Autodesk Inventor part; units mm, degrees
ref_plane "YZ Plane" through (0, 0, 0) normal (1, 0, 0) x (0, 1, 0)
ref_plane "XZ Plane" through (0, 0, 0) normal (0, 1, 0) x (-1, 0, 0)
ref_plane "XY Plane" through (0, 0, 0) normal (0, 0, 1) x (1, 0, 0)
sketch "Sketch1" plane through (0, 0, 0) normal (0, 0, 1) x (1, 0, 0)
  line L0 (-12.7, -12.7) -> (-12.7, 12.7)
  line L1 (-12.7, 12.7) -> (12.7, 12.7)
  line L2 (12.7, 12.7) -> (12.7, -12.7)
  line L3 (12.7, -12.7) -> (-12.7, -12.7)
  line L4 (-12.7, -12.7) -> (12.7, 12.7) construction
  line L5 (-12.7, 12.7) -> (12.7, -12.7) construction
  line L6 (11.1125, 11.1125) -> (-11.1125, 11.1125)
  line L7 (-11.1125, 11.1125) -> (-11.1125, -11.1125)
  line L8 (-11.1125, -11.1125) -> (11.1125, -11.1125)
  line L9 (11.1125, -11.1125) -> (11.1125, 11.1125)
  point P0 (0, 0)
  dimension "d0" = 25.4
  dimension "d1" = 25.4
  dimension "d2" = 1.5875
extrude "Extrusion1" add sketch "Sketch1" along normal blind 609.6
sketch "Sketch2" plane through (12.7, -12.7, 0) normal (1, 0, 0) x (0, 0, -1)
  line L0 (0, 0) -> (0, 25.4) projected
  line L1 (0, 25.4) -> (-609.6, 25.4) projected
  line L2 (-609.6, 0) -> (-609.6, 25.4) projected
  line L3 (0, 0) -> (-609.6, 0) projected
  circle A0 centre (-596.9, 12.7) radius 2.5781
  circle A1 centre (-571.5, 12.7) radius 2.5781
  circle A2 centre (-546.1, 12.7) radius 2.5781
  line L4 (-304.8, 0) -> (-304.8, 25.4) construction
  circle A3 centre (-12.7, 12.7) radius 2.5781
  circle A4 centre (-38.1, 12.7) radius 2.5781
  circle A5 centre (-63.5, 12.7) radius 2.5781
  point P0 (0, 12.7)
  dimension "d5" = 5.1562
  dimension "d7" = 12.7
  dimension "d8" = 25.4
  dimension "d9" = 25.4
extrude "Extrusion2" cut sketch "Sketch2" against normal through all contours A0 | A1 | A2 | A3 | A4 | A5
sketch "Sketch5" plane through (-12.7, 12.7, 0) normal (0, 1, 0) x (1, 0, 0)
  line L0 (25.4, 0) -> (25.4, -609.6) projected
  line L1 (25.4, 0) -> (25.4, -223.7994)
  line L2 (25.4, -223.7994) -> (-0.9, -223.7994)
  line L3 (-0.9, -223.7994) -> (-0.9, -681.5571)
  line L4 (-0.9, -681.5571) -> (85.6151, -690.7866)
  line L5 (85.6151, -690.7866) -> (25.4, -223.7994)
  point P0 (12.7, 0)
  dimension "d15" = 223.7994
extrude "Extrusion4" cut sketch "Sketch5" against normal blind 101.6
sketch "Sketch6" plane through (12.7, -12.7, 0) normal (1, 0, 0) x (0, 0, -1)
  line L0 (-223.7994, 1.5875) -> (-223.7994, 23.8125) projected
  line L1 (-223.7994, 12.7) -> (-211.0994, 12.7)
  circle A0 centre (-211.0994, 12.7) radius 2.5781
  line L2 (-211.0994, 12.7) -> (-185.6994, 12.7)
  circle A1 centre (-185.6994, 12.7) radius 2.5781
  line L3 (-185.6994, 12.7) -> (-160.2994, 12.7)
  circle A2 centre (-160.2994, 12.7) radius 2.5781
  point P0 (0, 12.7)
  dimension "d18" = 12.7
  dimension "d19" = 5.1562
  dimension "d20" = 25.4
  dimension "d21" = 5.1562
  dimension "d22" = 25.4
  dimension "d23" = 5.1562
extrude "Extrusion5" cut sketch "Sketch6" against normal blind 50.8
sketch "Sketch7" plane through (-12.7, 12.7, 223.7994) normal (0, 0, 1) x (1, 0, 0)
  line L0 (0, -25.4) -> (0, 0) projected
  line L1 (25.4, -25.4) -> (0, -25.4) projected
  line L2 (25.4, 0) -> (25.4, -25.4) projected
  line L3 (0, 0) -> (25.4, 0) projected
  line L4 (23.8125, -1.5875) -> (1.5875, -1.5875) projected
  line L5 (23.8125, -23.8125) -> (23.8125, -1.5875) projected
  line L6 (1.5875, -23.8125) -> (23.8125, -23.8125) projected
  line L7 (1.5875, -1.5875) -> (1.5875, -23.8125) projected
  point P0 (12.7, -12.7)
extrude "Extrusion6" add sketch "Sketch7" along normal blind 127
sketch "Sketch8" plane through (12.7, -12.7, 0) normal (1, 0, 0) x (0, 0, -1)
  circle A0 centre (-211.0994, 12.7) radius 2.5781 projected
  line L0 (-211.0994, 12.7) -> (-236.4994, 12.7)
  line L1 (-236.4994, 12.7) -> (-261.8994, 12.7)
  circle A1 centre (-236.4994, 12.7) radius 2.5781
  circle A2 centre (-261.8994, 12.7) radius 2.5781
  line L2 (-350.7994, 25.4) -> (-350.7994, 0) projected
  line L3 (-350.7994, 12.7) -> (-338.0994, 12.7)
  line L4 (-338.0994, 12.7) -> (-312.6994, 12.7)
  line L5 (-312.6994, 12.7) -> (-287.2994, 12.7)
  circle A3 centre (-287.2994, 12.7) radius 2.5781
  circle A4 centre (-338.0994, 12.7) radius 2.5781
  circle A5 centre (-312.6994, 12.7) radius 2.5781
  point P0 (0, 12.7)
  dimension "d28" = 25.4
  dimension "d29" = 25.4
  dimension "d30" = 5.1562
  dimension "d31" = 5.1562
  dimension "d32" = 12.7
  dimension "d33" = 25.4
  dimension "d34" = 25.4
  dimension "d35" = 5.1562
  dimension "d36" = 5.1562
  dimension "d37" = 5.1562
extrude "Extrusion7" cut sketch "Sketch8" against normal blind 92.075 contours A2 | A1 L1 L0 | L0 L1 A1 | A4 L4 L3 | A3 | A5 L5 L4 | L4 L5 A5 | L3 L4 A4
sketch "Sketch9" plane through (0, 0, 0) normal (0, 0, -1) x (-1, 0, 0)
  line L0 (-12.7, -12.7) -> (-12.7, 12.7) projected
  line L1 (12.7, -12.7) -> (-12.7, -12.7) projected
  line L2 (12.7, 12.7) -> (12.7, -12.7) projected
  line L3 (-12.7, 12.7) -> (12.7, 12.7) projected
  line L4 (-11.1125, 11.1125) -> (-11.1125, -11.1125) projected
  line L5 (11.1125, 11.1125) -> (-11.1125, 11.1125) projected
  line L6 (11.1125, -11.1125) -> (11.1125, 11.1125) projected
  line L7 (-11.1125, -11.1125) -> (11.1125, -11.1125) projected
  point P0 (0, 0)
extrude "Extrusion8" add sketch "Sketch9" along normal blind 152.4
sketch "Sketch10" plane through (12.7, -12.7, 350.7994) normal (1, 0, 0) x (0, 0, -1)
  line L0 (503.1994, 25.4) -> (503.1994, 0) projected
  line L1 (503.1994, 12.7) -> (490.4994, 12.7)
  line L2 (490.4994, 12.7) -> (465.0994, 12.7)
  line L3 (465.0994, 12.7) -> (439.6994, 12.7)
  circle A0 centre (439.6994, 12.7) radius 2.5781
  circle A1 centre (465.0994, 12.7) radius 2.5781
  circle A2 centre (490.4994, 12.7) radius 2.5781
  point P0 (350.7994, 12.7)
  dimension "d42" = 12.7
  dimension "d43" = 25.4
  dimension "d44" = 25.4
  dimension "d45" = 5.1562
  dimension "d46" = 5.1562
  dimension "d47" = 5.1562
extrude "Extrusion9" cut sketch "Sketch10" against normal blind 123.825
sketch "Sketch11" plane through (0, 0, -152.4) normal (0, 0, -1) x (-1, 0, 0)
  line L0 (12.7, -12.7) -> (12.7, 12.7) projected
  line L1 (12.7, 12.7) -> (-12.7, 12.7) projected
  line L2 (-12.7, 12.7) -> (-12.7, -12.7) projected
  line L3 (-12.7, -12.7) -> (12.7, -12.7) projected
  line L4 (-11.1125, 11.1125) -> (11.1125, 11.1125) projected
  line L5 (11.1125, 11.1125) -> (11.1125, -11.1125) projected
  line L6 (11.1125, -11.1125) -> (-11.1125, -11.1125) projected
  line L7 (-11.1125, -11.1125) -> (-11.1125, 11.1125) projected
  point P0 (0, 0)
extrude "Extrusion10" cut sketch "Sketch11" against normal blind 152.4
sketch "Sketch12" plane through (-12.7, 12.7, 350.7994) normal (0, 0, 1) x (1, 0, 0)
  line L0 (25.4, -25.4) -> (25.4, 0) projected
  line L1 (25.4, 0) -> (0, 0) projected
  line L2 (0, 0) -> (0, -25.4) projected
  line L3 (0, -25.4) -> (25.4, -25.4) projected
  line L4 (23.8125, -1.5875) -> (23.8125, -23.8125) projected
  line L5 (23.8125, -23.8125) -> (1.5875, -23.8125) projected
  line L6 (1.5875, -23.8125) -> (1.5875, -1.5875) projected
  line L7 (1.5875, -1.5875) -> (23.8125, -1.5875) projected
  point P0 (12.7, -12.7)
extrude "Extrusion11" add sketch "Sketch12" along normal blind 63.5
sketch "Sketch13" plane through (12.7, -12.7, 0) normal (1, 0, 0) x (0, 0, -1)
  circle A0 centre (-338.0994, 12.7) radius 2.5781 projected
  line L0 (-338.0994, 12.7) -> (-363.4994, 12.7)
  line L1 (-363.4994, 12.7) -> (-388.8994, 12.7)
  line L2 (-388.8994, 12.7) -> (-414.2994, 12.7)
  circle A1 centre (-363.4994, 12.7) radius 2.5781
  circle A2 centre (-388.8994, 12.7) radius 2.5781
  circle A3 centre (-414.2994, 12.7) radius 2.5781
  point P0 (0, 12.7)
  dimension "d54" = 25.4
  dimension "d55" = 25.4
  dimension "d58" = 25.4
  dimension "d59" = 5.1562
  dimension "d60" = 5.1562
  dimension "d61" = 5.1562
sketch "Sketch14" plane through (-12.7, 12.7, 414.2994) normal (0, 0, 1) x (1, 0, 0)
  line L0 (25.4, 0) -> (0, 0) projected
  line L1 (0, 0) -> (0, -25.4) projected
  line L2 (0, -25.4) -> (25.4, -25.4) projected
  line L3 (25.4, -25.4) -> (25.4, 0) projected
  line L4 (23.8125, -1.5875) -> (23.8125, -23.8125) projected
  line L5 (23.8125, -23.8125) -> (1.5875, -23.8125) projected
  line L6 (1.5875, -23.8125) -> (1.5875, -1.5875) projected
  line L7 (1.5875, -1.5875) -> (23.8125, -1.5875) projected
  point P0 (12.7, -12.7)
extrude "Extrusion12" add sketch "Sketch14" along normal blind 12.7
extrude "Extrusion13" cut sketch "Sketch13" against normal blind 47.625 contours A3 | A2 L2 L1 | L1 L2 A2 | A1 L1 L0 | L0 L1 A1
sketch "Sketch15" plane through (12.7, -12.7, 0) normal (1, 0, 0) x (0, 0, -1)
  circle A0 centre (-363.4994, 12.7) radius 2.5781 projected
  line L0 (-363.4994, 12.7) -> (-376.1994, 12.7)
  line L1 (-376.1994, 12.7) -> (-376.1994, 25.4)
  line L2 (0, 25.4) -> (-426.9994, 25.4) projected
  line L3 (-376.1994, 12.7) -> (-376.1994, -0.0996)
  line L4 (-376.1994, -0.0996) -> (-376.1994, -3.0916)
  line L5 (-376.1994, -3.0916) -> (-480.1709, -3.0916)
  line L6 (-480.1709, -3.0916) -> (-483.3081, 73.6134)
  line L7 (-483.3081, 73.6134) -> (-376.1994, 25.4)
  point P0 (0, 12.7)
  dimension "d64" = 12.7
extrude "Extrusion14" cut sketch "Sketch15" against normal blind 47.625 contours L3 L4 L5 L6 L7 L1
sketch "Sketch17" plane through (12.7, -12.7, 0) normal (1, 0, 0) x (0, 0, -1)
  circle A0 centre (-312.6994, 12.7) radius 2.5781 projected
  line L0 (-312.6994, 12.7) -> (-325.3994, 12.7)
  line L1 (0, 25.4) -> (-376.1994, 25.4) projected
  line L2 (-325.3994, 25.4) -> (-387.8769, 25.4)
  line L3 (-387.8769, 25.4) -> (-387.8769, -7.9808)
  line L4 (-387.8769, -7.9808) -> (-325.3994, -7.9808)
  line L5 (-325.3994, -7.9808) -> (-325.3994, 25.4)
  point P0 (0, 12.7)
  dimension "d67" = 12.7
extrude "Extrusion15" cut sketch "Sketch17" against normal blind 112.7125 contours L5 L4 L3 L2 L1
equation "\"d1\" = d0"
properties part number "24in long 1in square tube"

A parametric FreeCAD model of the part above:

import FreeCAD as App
import Part
import Sketcher
Q = App.Units.Quantity

doc = App.newDocument("Part")
body = doc.addObject("PartDesign::Body", "Body")

sketch1 = doc.addObject("Sketcher::SketchObject", "Sketch")
body.addObject(sketch1)
sketch1.AttachmentSupport = (doc.XY_Plane, [""])
sketch1.MapMode = "FlatFace"
sketch1.addGeometry(Part.LineSegment(App.Vector(-13, 13, 0), App.Vector(-13, -13, 0)), False)
sketch1.addGeometry(Part.LineSegment(App.Vector(-13, -13, 0), App.Vector(13, -13, 0)), False)
sketch1.addGeometry(Part.LineSegment(App.Vector(13, -13, 0), App.Vector(13, 13, 0)), False)
sketch1.addGeometry(Part.LineSegment(App.Vector(13, 13, 0), App.Vector(-13, 13, 0)), False)
sketch1.addGeometry(Part.LineSegment(App.Vector(-11, 11, 0), App.Vector(11, 11, 0)), False)
sketch1.addGeometry(Part.LineSegment(App.Vector(11, 11, 0), App.Vector(11, -11, 0)), False)
sketch1.addGeometry(Part.LineSegment(App.Vector(11, -11, 0), App.Vector(-11, -11, 0)), False)
sketch1.addGeometry(Part.LineSegment(App.Vector(-11, -11, 0), App.Vector(-11, 11, 0)), False)
sketch1.addConstraint(Sketcher.Constraint("Coincident", 0, 2, 1, 1))
sketch1.addConstraint(Sketcher.Constraint("Coincident", 1, 2, 2, 1))
sketch1.addConstraint(Sketcher.Constraint("Coincident", 2, 2, 3, 1))
sketch1.addConstraint(Sketcher.Constraint("Coincident", 3, 2, 0, 1))
sketch1.addConstraint(Sketcher.Constraint("Coincident", 4, 2, 5, 1))
sketch1.addConstraint(Sketcher.Constraint("Coincident", 5, 2, 6, 1))
sketch1.addConstraint(Sketcher.Constraint("Coincident", 6, 2, 7, 1))
sketch1.addConstraint(Sketcher.Constraint("Coincident", 7, 2, 4, 1))
sketch1.addConstraint(Sketcher.Constraint("Vertical", 0))
sketch1.addConstraint(Sketcher.Constraint("Horizontal", 1))
sketch1.addConstraint(Sketcher.Constraint("Vertical", 2))
sketch1.addConstraint(Sketcher.Constraint("Horizontal", 3))
sketch1.addConstraint(Sketcher.Constraint("Horizontal", 4))
sketch1.addConstraint(Sketcher.Constraint("Vertical", 5))
sketch1.addConstraint(Sketcher.Constraint("Horizontal", 6))
sketch1.addConstraint(Sketcher.Constraint("Vertical", 7))
sketch1.addConstraint(Sketcher.Constraint("Symmetric", 0, 2, 2, 2, -1, 1))
sketch1.addConstraint(Sketcher.Constraint("Symmetric", 4, 2, 6, 2, -1, 1))
sketch1.addConstraint(Sketcher.Constraint("Equal", 3, 0))
sketch1.addConstraint(Sketcher.Constraint("Equal", 6, 5))
sketch1.addConstraint(Sketcher.Constraint("DistanceX", 1, 1, 1, 2, Q("1 in")))
sketch1.addConstraint(Sketcher.Constraint("DistanceX", 4, 2, 2, 2, Q("0.0625 in")))
pad1 = doc.addObject("PartDesign::Pad", "Pad")
body.addObject(pad1)
pad1.Profile = sketch1
pad1.Length = Q("24 in")

sketch2 = doc.addObject("Sketcher::SketchObject", "Sketch001")
body.addObject(sketch2)
sketch2.AttachmentSupport = (doc.YZ_Plane, [""])
sketch2.MapMode = "FlatFace"
sketch2.AttachmentOffset = App.Placement(App.Vector(0, 0, 0.5 * 25.4), App.Rotation())
sketch2.addGeometry(Part.Circle(App.Vector(0, 596.9, 0), App.Vector(0, 0, 1), 2.6), False)
sketch2.addGeometry(Part.Circle(App.Vector(0, 571.5, 0), App.Vector(0, 0, 1), 2.6), False)
sketch2.addGeometry(Part.Circle(App.Vector(0, 546.1, 0), App.Vector(0, 0, 1), 2.6), False)
sketch2.addGeometry(Part.Circle(App.Vector(0, 12.7, 0), App.Vector(0, 0, 1), 2.6), False)
sketch2.addGeometry(Part.Circle(App.Vector(0, 38.1, 0), App.Vector(0, 0, 1), 2.6), False)
sketch2.addGeometry(Part.Circle(App.Vector(0, 63.5, 0), App.Vector(0, 0, 1), 2.6), False)
sketch2.addConstraint(Sketcher.Constraint("Equal", 0, 1))
sketch2.addConstraint(Sketcher.Constraint("Equal", 1, 2))
sketch2.addConstraint(Sketcher.Constraint("Equal", 2, 3))
sketch2.addConstraint(Sketcher.Constraint("Equal", 3, 4))
sketch2.addConstraint(Sketcher.Constraint("Equal", 4, 5))
sketch2.addConstraint(Sketcher.Constraint("PointOnObject", 0, 3, -2))
sketch2.addConstraint(Sketcher.Constraint("PointOnObject", 1, 3, -2))
sketch2.addConstraint(Sketcher.Constraint("PointOnObject", 2, 3, -2))
sketch2.addConstraint(Sketcher.Constraint("PointOnObject", 3, 3, -2))
sketch2.addConstraint(Sketcher.Constraint("PointOnObject", 4, 3, -2))
sketch2.addConstraint(Sketcher.Constraint("PointOnObject", 5, 3, -2))
sketch2.addConstraint(Sketcher.Constraint("Diameter", 0, Q("0.203 in")))
sketch2.addConstraint(Sketcher.Constraint("DistanceY", 1, 3, 0, 3, Q("1 in")))
sketch2.addConstraint(Sketcher.Constraint("DistanceY", 2, 3, 1, 3, Q("1 in")))
sketch2.addConstraint(Sketcher.Constraint("DistanceY", 3, 3, 4, 3, Q("1 in")))
sketch2.addConstraint(Sketcher.Constraint("DistanceY", 4, 3, 5, 3, Q("1 in")))
sketch2.addConstraint(Sketcher.Constraint("DistanceY", -1, 1, 3, 3, Q("0.5 in")))
sketch2.addConstraint(Sketcher.Constraint("DistanceY", 3, 3, 2, 3, Q("21 in")))
pocket1 = doc.addObject("PartDesign::Pocket", "Pocket")
body.addObject(pocket1)
pocket1.Profile = sketch2
pocket1.Type = "ThroughAll"

sketch3 = doc.addObject("Sketcher::SketchObject", "Sketch002")
body.addObject(sketch3)
sketch3.AttachmentSupport = (doc.XZ_Plane, [""])
sketch3.MapMode = "FlatFace"
sketch3.AttachmentOffset = App.Placement(App.Vector(0, 0, -0.5 * 25.4), App.Rotation())
sketch3.addGeometry(Part.LineSegment(App.Vector(73, 691, 0), App.Vector(13, 224, 0)), False)
sketch3.addGeometry(Part.LineSegment(App.Vector(13, 224, 0), App.Vector(-14, 224, 0)), False)
sketch3.addGeometry(Part.LineSegment(App.Vector(-14, 224, 0), App.Vector(-14, 682, 0)), False)
sketch3.addGeometry(Part.LineSegment(App.Vector(-14, 682, 0), App.Vector(73, 691, 0)), False)
sketch3.addConstraint(Sketcher.Constraint("Coincident", 0, 2, 1, 1))
sketch3.addConstraint(Sketcher.Constraint("Coincident", 1, 2, 2, 1))
sketch3.addConstraint(Sketcher.Constraint("Coincident", 2, 2, 3, 1))
sketch3.addConstraint(Sketcher.Constraint("Coincident", 3, 2, 0, 1))
sketch3.addConstraint(Sketcher.Constraint("Horizontal", 1))
sketch3.addConstraint(Sketcher.Constraint("Vertical", 2))
sketch3.addConstraint(Sketcher.Constraint("DistanceY", -1, 1, 0, 2, Q("8.811 in")))
sketch3.addConstraint(Sketcher.Constraint("DistanceX", -1, 1, 0, 2, Q("0.5 in")))
sketch3.addConstraint(Sketcher.Constraint("Angle", 3, Q("6.0893 deg")))
sketch3.addConstraint(Sketcher.Constraint("DistanceX", 1, 2, 1, 1, 26.3))
sketch3.addConstraint(Sketcher.Constraint("DistanceY", 2, 1, 2, 2, 457.7577))
sketch3.addConstraint(Sketcher.Constraint("DistanceX", 2, 2, 3, 2, Q("3.4061 in")))
pocket2 = doc.addObject("PartDesign::Pocket", "Pocket001")
body.addObject(pocket2)
pocket2.Profile = sketch3
pocket2.Length = Q("4 in")
pocket2.Reversed = True

sketch4 = doc.addObject("Sketcher::SketchObject", "Sketch003")
body.addObject(sketch4)
sketch4.AttachmentSupport = (doc.YZ_Plane, [""])
sketch4.MapMode = "FlatFace"
sketch4.AttachmentOffset = App.Placement(App.Vector(0, 0, 0.5 * 25.4), App.Rotation())
sketch4.addGeometry(Part.Circle(App.Vector(0, 211.1, 0), App.Vector(0, 0, 1), 2.6), False)
sketch4.addGeometry(Part.Circle(App.Vector(0, 160.3, 0), App.Vector(0, 0, 1), 2.6), False)
sketch4.addGeometry(Part.Circle(App.Vector(0, 185.7, 0), App.Vector(0, 0, 1), 2.6), False)
sketch4.addConstraint(Sketcher.Constraint("Equal", 0, 1))
sketch4.addConstraint(Sketcher.Constraint("Equal", 1, 2))
sketch4.addConstraint(Sketcher.Constraint("PointOnObject", 0, 3, -2))
sketch4.addConstraint(Sketcher.Constraint("PointOnObject", 1, 3, -2))
sketch4.addConstraint(Sketcher.Constraint("PointOnObject", 2, 3, -2))
sketch4.addConstraint(Sketcher.Constraint("Diameter", 0, Q("0.203 in")))
sketch4.addConstraint(Sketcher.Constraint("DistanceY", 2, 3, 0, 3, Q("1 in")))
sketch4.addConstraint(Sketcher.Constraint("DistanceY", 1, 3, 2, 3, Q("1 in")))
sketch4.addConstraint(Sketcher.Constraint("DistanceY", -1, 1, 0, 3, Q("8.311 in")))
pocket3 = doc.addObject("PartDesign::Pocket", "Pocket002")
body.addObject(pocket3)
pocket3.Profile = sketch4
pocket3.Length = Q("2 in")

sketch5 = doc.addObject("Sketcher::SketchObject", "Sketch004")
body.addObject(sketch5)
sketch5.AttachmentSupport = (doc.XY_Plane, [""])
sketch5.MapMode = "FlatFace"
sketch5.AttachmentOffset = App.Placement(App.Vector(0, 0, 8.811 * 25.4), App.Rotation())
sketch5.addGeometry(Part.LineSegment(App.Vector(-13, 13, 0), App.Vector(-13, -13, 0)), False)
sketch5.addGeometry(Part.LineSegment(App.Vector(-13, -13, 0), App.Vector(13, -13, 0)), False)
sketch5.addGeometry(Part.LineSegment(App.Vector(13, -13, 0), App.Vector(13, 13, 0)), False)
sketch5.addGeometry(Part.LineSegment(App.Vector(13, 13, 0), App.Vector(-13, 13, 0)), False)
sketch5.addGeometry(Part.LineSegment(App.Vector(-11, 11, 0), App.Vector(11, 11, 0)), False)
sketch5.addGeometry(Part.LineSegment(App.Vector(11, 11, 0), App.Vector(11, -11, 0)), False)
sketch5.addGeometry(Part.LineSegment(App.Vector(11, -11, 0), App.Vector(-11, -11, 0)), False)
sketch5.addGeometry(Part.LineSegment(App.Vector(-11, -11, 0), App.Vector(-11, 11, 0)), False)
sketch5.addConstraint(Sketcher.Constraint("Coincident", 0, 2, 1, 1))
sketch5.addConstraint(Sketcher.Constraint("Coincident", 1, 2, 2, 1))
sketch5.addConstraint(Sketcher.Constraint("Coincident", 2, 2, 3, 1))
sketch5.addConstraint(Sketcher.Constraint("Coincident", 3, 2, 0, 1))
sketch5.addConstraint(Sketcher.Constraint("Coincident", 4, 2, 5, 1))
sketch5.addConstraint(Sketcher.Constraint("Coincident", 5, 2, 6, 1))
sketch5.addConstraint(Sketcher.Constraint("Coincident", 6, 2, 7, 1))
sketch5.addConstraint(Sketcher.Constraint("Coincident", 7, 2, 4, 1))
sketch5.addConstraint(Sketcher.Constraint("Vertical", 0))
sketch5.addConstraint(Sketcher.Constraint("Horizontal", 1))
sketch5.addConstraint(Sketcher.Constraint("Vertical", 2))
sketch5.addConstraint(Sketcher.Constraint("Horizontal", 3))
sketch5.addConstraint(Sketcher.Constraint("Horizontal", 4))
sketch5.addConstraint(Sketcher.Constraint("Vertical", 5))
sketch5.addConstraint(Sketcher.Constraint("Horizontal", 6))
sketch5.addConstraint(Sketcher.Constraint("Vertical", 7))
sketch5.addConstraint(Sketcher.Constraint("Symmetric", 0, 2, 2, 2, -1, 1))
sketch5.addConstraint(Sketcher.Constraint("Symmetric", 4, 2, 6, 2, -1, 1))
sketch5.addConstraint(Sketcher.Constraint("Equal", 3, 0))
sketch5.addConstraint(Sketcher.Constraint("Equal", 6, 5))
sketch5.addConstraint(Sketcher.Constraint("DistanceX", 1, 1, 1, 2, Q("1 in")))
sketch5.addConstraint(Sketcher.Constraint("DistanceX", 4, 1, 4, 2, Q("0.875 in")))
pad2 = doc.addObject("PartDesign::Pad", "Pad001")
body.addObject(pad2)
pad2.Profile = sketch5
pad2.Length = Q("5 in")

sketch6 = doc.addObject("Sketcher::SketchObject", "Sketch005")
body.addObject(sketch6)
sketch6.AttachmentSupport = (doc.YZ_Plane, [""])
sketch6.MapMode = "FlatFace"
sketch6.AttachmentOffset = App.Placement(App.Vector(0, 0, 0.5 * 25.4), App.Rotation())
sketch6.addGeometry(Part.Circle(App.Vector(0, 261.9, 0), App.Vector(0, 0, 1), 2.6), False)
sketch6.addGeometry(Part.Circle(App.Vector(0, 236.5, 0), App.Vector(0, 0, 1), 2.6), False)
sketch6.addGeometry(Part.Circle(App.Vector(0, 338.1, 0), App.Vector(0, 0, 1), 2.6), False)
sketch6.addGeometry(Part.Circle(App.Vector(0, 287.3, 0), App.Vector(0, 0, 1), 2.6), False)
sketch6.addGeometry(Part.Circle(App.Vector(0, 312.7, 0), App.Vector(0, 0, 1), 2.6), False)
sketch6.addConstraint(Sketcher.Constraint("Equal", 0, 1))
sketch6.addConstraint(Sketcher.Constraint("Equal", 1, 2))
sketch6.addConstraint(Sketcher.Constraint("Equal", 2, 3))
sketch6.addConstraint(Sketcher.Constraint("Equal", 3, 4))
sketch6.addConstraint(Sketcher.Constraint("PointOnObject", 0, 3, -2))
sketch6.addConstraint(Sketcher.Constraint("PointOnObject", 1, 3, -2))
sketch6.addConstraint(Sketcher.Constraint("PointOnObject", 2, 3, -2))
sketch6.addConstraint(Sketcher.Constraint("PointOnObject", 3, 3, -2))
sketch6.addConstraint(Sketcher.Constraint("PointOnObject", 4, 3, -2))
sketch6.addConstraint(Sketcher.Constraint("Diameter", 0, Q("0.203 in")))
sketch6.addConstraint(Sketcher.Constraint("DistanceY", 1, 3, 0, 3, Q("1 in")))
sketch6.addConstraint(Sketcher.Constraint("DistanceY", 0, 3, 3, 3, Q("1 in")))
sketch6.addConstraint(Sketcher.Constraint("DistanceY", 4, 3, 2, 3, Q("1 in")))
sketch6.addConstraint(Sketcher.Constraint("DistanceY", 3, 3, 4, 3, Q("1 in")))
sketch6.addConstraint(Sketcher.Constraint("DistanceY", -1, 1, 0, 3, Q("10.311 in")))
pocket4 = doc.addObject("PartDesign::Pocket", "Pocket003")
body.addObject(pocket4)
pocket4.Profile = sketch6
pocket4.Length = Q("3.625 in")

sketch7 = doc.addObject("Sketcher::SketchObject", "Sketch006")
body.addObject(sketch7)
sketch7.AttachmentSupport = (doc.XY_Plane, [""])
sketch7.MapMode = "FlatFace"
sketch7.addGeometry(Part.LineSegment(App.Vector(13, 13, 0), App.Vector(13, -13, 0)), False)
sketch7.addGeometry(Part.LineSegment(App.Vector(13, -13, 0), App.Vector(-13, -13, 0)), False)
sketch7.addGeometry(Part.LineSegment(App.Vector(-13, -13, 0), App.Vector(-13, 13, 0)), False)
sketch7.addGeometry(Part.LineSegment(App.Vector(-13, 13, 0), App.Vector(13, 13, 0)), False)
sketch7.addGeometry(Part.LineSegment(App.Vector(11, -11, 0), App.Vector(11, 11, 0)), False)
sketch7.addGeometry(Part.LineSegment(App.Vector(11, 11, 0), App.Vector(-11, 11, 0)), False)
sketch7.addGeometry(Part.LineSegment(App.Vector(-11, 11, 0), App.Vector(-11, -11, 0)), False)
sketch7.addGeometry(Part.LineSegment(App.Vector(-11, -11, 0), App.Vector(11, -11, 0)), False)
sketch7.addConstraint(Sketcher.Constraint("Coincident", 0, 2, 1, 1))
sketch7.addConstraint(Sketcher.Constraint("Coincident", 1, 2, 2, 1))
sketch7.addConstraint(Sketcher.Constraint("Coincident", 2, 2, 3, 1))
sketch7.addConstraint(Sketcher.Constraint("Coincident", 3, 2, 0, 1))
sketch7.addConstraint(Sketcher.Constraint("Coincident", 4, 2, 5, 1))
sketch7.addConstraint(Sketcher.Constraint("Coincident", 5, 2, 6, 1))
sketch7.addConstraint(Sketcher.Constraint("Coincident", 6, 2, 7, 1))
sketch7.addConstraint(Sketcher.Constraint("Coincident", 7, 2, 4, 1))
sketch7.addConstraint(Sketcher.Constraint("Vertical", 0))
sketch7.addConstraint(Sketcher.Constraint("Horizontal", 1))
sketch7.addConstraint(Sketcher.Constraint("Vertical", 2))
sketch7.addConstraint(Sketcher.Constraint("Horizontal", 3))
sketch7.addConstraint(Sketcher.Constraint("Vertical", 4))
sketch7.addConstraint(Sketcher.Constraint("Horizontal", 5))
sketch7.addConstraint(Sketcher.Constraint("Vertical", 6))
sketch7.addConstraint(Sketcher.Constraint("Horizontal", 7))
sketch7.addConstraint(Sketcher.Constraint("Symmetric", 0, 2, 2, 2, -1, 1))
sketch7.addConstraint(Sketcher.Constraint("Symmetric", 4, 2, 6, 2, -1, 1))
sketch7.addConstraint(Sketcher.Constraint("Equal", 3, 0))
sketch7.addConstraint(Sketcher.Constraint("Equal", 7, 4))
sketch7.addConstraint(Sketcher.Constraint("DistanceX", 1, 2, 1, 1, Q("1 in")))
sketch7.addConstraint(Sketcher.Constraint("DistanceX", 5, 2, 5, 1, Q("0.875 in")))
pad3 = doc.addObject("PartDesign::Pad", "Pad002")
body.addObject(pad3)
pad3.Profile = sketch7
pad3.Length = Q("6 in")
pad3.Reversed = True

sketch8 = doc.addObject("Sketcher::SketchObject", "Sketch007")
body.addObject(sketch8)
sketch8.AttachmentSupport = (doc.YZ_Plane, [""])
sketch8.MapMode = "FlatFace"
sketch8.AttachmentOffset = App.Placement(App.Vector(0, 0, 0.5 * 25.4), App.Rotation())
sketch8.addGeometry(Part.Circle(App.Vector(0, -139.7, 0), App.Vector(0, 0, 1), 2.6), False)
sketch8.addGeometry(Part.Circle(App.Vector(0, -88.9, 0), App.Vector(0, 0, 1), 2.6), False)
sketch8.addGeometry(Part.Circle(App.Vector(0, -114.3, 0), App.Vector(0, 0, 1), 2.6), False)
sketch8.addConstraint(Sketcher.Constraint("Equal", 0, 1))
sketch8.addConstraint(Sketcher.Constraint("Equal", 1, 2))
sketch8.addConstraint(Sketcher.Constraint("PointOnObject", 0, 3, -2))
sketch8.addConstraint(Sketcher.Constraint("PointOnObject", 1, 3, -2))
sketch8.addConstraint(Sketcher.Constraint("PointOnObject", 2, 3, -2))
sketch8.addConstraint(Sketcher.Constraint("Diameter", 0, Q("0.203 in")))
sketch8.addConstraint(Sketcher.Constraint("DistanceY", 0, 3, 2, 3, Q("1 in")))
sketch8.addConstraint(Sketcher.Constraint("DistanceY", 2, 3, 1, 3, Q("1 in")))
sketch8.addConstraint(Sketcher.Constraint("DistanceY", 0, 3, -1, 1, Q("5.5 in")))
pocket5 = doc.addObject("PartDesign::Pocket", "Pocket004")
body.addObject(pocket5)
pocket5.Profile = sketch8
pocket5.Length = Q("4.875 in")

sketch9 = doc.addObject("Sketcher::SketchObject", "Sketch008")
body.addObject(sketch9)
sketch9.AttachmentSupport = (doc.XY_Plane, [""])
sketch9.MapMode = "FlatFace"
sketch9.AttachmentOffset = App.Placement(App.Vector(0, 0, -6 * 25.4), App.Rotation())
sketch9.addGeometry(Part.LineSegment(App.Vector(13, -13, 0), App.Vector(-13, -13, 0)), False)
sketch9.addGeometry(Part.LineSegment(App.Vector(-13, -13, 0), App.Vector(-13, 13, 0)), False)
sketch9.addGeometry(Part.LineSegment(App.Vector(-13, 13, 0), App.Vector(13, 13, 0)), False)
sketch9.addGeometry(Part.LineSegment(App.Vector(13, 13, 0), App.Vector(13, -13, 0)), False)
sketch9.addGeometry(Part.LineSegment(App.Vector(11, -11, 0), App.Vector(11, 11, 0)), False)
sketch9.addGeometry(Part.LineSegment(App.Vector(11, 11, 0), App.Vector(-11, 11, 0)), False)
sketch9.addGeometry(Part.LineSegment(App.Vector(-11, 11, 0), App.Vector(-11, -11, 0)), False)
sketch9.addGeometry(Part.LineSegment(App.Vector(-11, -11, 0), App.Vector(11, -11, 0)), False)
sketch9.addConstraint(Sketcher.Constraint("Coincident", 0, 2, 1, 1))
sketch9.addConstraint(Sketcher.Constraint("Coincident", 1, 2, 2, 1))
sketch9.addConstraint(Sketcher.Constraint("Coincident", 2, 2, 3, 1))
sketch9.addConstraint(Sketcher.Constraint("Coincident", 3, 2, 0, 1))
sketch9.addConstraint(Sketcher.Constraint("Coincident", 4, 2, 5, 1))
sketch9.addConstraint(Sketcher.Constraint("Coincident", 5, 2, 6, 1))
sketch9.addConstraint(Sketcher.Constraint("Coincident", 6, 2, 7, 1))
sketch9.addConstraint(Sketcher.Constraint("Coincident", 7, 2, 4, 1))
sketch9.addConstraint(Sketcher.Constraint("Horizontal", 0))
sketch9.addConstraint(Sketcher.Constraint("Vertical", 1))
sketch9.addConstraint(Sketcher.Constraint("Horizontal", 2))
sketch9.addConstraint(Sketcher.Constraint("Vertical", 3))
sketch9.addConstraint(Sketcher.Constraint("Vertical", 4))
sketch9.addConstraint(Sketcher.Constraint("Horizontal", 5))
sketch9.addConstraint(Sketcher.Constraint("Vertical", 6))
sketch9.addConstraint(Sketcher.Constraint("Horizontal", 7))
sketch9.addConstraint(Sketcher.Constraint("Symmetric", 0, 2, 2, 2, -1, 1))
sketch9.addConstraint(Sketcher.Constraint("Symmetric", 4, 2, 6, 2, -1, 1))
sketch9.addConstraint(Sketcher.Constraint("Equal", 2, 1))
sketch9.addConstraint(Sketcher.Constraint("Equal", 7, 4))
sketch9.addConstraint(Sketcher.Constraint("DistanceX", 0, 2, 0, 1, Q("1 in")))
sketch9.addConstraint(Sketcher.Constraint("DistanceX", 5, 2, 5, 1, Q("0.875 in")))
pocket6 = doc.addObject("PartDesign::Pocket", "Pocket005")
body.addObject(pocket6)
pocket6.Profile = sketch9
pocket6.Length = Q("6 in")
pocket6.Reversed = True

sketch10 = doc.addObject("Sketcher::SketchObject", "Sketch009")
body.addObject(sketch10)
sketch10.AttachmentSupport = (doc.XY_Plane, [""])
sketch10.MapMode = "FlatFace"
sketch10.AttachmentOffset = App.Placement(App.Vector(0, 0, 13.811 * 25.4), App.Rotation())
sketch10.addGeometry(Part.LineSegment(App.Vector(-13, -13, 0), App.Vector(13, -13, 0)), False)
sketch10.addGeometry(Part.LineSegment(App.Vector(13, -13, 0), App.Vector(13, 13, 0)), False)
sketch10.addGeometry(Part.LineSegment(App.Vector(13, 13, 0), App.Vector(-13, 13, 0)), False)
sketch10.addGeometry(Part.LineSegment(App.Vector(-13, 13, 0), App.Vector(-13, -13, 0)), False)
sketch10.addGeometry(Part.LineSegment(App.Vector(-11, 11, 0), App.Vector(11, 11, 0)), False)
sketch10.addGeometry(Part.LineSegment(App.Vector(11, 11, 0), App.Vector(11, -11, 0)), False)
sketch10.addGeometry(Part.LineSegment(App.Vector(11, -11, 0), App.Vector(-11, -11, 0)), False)
sketch10.addGeometry(Part.LineSegment(App.Vector(-11, -11, 0), App.Vector(-11, 11, 0)), False)
sketch10.addConstraint(Sketcher.Constraint("Coincident", 0, 2, 1, 1))
sketch10.addConstraint(Sketcher.Constraint("Coincident", 1, 2, 2, 1))
sketch10.addConstraint(Sketcher.Constraint("Coincident", 2, 2, 3, 1))
sketch10.addConstraint(Sketcher.Constraint("Coincident", 3, 2, 0, 1))
sketch10.addConstraint(Sketcher.Constraint("Coincident", 4, 2, 5, 1))
sketch10.addConstraint(Sketcher.Constraint("Coincident", 5, 2, 6, 1))
sketch10.addConstraint(Sketcher.Constraint("Coincident", 6, 2, 7, 1))
sketch10.addConstraint(Sketcher.Constraint("Coincident", 7, 2, 4, 1))
sketch10.addConstraint(Sketcher.Constraint("Horizontal", 0))
sketch10.addConstraint(Sketcher.Constraint("Vertical", 1))
sketch10.addConstraint(Sketcher.Constraint("Horizontal", 2))
sketch10.addConstraint(Sketcher.Constraint("Vertical", 3))
sketch10.addConstraint(Sketcher.Constraint("Horizontal", 4))
sketch10.addConstraint(Sketcher.Constraint("Vertical", 5))
sketch10.addConstraint(Sketcher.Constraint("Horizontal", 6))
sketch10.addConstraint(Sketcher.Constraint("Vertical", 7))
sketch10.addConstraint(Sketcher.Constraint("Symmetric", 0, 2, 2, 2, -1, 1))
sketch10.addConstraint(Sketcher.Constraint("Symmetric", 4, 2, 6, 2, -1, 1))
sketch10.addConstraint(Sketcher.Constraint("Equal", 2, 1))
sketch10.addConstraint(Sketcher.Constraint("Equal", 6, 5))
sketch10.addConstraint(Sketcher.Constraint("DistanceX", 0, 1, 0, 2, Q("1 in")))
sketch10.addConstraint(Sketcher.Constraint("DistanceX", 4, 1, 4, 2, Q("0.875 in")))
pad4 = doc.addObject("PartDesign::Pad", "Pad003")
body.addObject(pad4)
pad4.Profile = sketch10
pad4.Length = Q("2.5 in")

sketch11 = doc.addObject("Sketcher::SketchObject", "Sketch010")
body.addObject(sketch11)
sketch11.AttachmentSupport = (doc.XY_Plane, [""])
sketch11.MapMode = "FlatFace"
sketch11.AttachmentOffset = App.Placement(App.Vector(0, 0, 16.311 * 25.4), App.Rotation())
sketch11.addGeometry(Part.LineSegment(App.Vector(13, -13, 0), App.Vector(13, 13, 0)), False)
sketch11.addGeometry(Part.LineSegment(App.Vector(13, 13, 0), App.Vector(-13, 13, 0)), False)
sketch11.addGeometry(Part.LineSegment(App.Vector(-13, 13, 0), App.Vector(-13, -13, 0)), False)
sketch11.addGeometry(Part.LineSegment(App.Vector(-13, -13, 0), App.Vector(13, -13, 0)), False)
sketch11.addGeometry(Part.LineSegment(App.Vector(-11, 11, 0), App.Vector(11, 11, 0)), False)
sketch11.addGeometry(Part.LineSegment(App.Vector(11, 11, 0), App.Vector(11, -11, 0)), False)
sketch11.addGeometry(Part.LineSegment(App.Vector(11, -11, 0), App.Vector(-11, -11, 0)), False)
sketch11.addGeometry(Part.LineSegment(App.Vector(-11, -11, 0), App.Vector(-11, 11, 0)), False)
sketch11.addConstraint(Sketcher.Constraint("Coincident", 0, 2, 1, 1))
sketch11.addConstraint(Sketcher.Constraint("Coincident", 1, 2, 2, 1))
sketch11.addConstraint(Sketcher.Constraint("Coincident", 2, 2, 3, 1))
sketch11.addConstraint(Sketcher.Constraint("Coincident", 3, 2, 0, 1))
sketch11.addConstraint(Sketcher.Constraint("Coincident", 4, 2, 5, 1))
sketch11.addConstraint(Sketcher.Constraint("Coincident", 5, 2, 6, 1))
sketch11.addConstraint(Sketcher.Constraint("Coincident", 6, 2, 7, 1))
sketch11.addConstraint(Sketcher.Constraint("Coincident", 7, 2, 4, 1))
sketch11.addConstraint(Sketcher.Constraint("Vertical", 0))
sketch11.addConstraint(Sketcher.Constraint("Horizontal", 1))
sketch11.addConstraint(Sketcher.Constraint("Vertical", 2))
sketch11.addConstraint(Sketcher.Constraint("Horizontal", 3))
sketch11.addConstraint(Sketcher.Constraint("Horizontal", 4))
sketch11.addConstraint(Sketcher.Constraint("Vertical", 5))
sketch11.addConstraint(Sketcher.Constraint("Horizontal", 6))
sketch11.addConstraint(Sketcher.Constraint("Vertical", 7))
sketch11.addConstraint(Sketcher.Constraint("Symmetric", 0, 2, 2, 2, -1, 1))
sketch11.addConstraint(Sketcher.Constraint("Symmetric", 4, 2, 6, 2, -1, 1))
sketch11.addConstraint(Sketcher.Constraint("Equal", 3, 0))
sketch11.addConstraint(Sketcher.Constraint("Equal", 6, 5))
sketch11.addConstraint(Sketcher.Constraint("DistanceX", 1, 2, 1, 1, Q("1 in")))
sketch11.addConstraint(Sketcher.Constraint("DistanceX", 4, 1, 4, 2, Q("0.875 in")))
pad5 = doc.addObject("PartDesign::Pad", "Pad004")
body.addObject(pad5)
pad5.Profile = sketch11
pad5.Length = Q("0.5 in")

sketch12 = doc.addObject("Sketcher::SketchObject", "Sketch011")
body.addObject(sketch12)
sketch12.AttachmentSupport = (doc.YZ_Plane, [""])
sketch12.MapMode = "FlatFace"
sketch12.AttachmentOffset = App.Placement(App.Vector(0, 0, 0.5 * 25.4), App.Rotation())
sketch12.addGeometry(Part.Circle(App.Vector(0, 414.3, 0), App.Vector(0, 0, 1), 2.6), False)
sketch12.addGeometry(Part.Circle(App.Vector(0, 388.9, 0), App.Vector(0, 0, 1), 2.6), False)
sketch12.addGeometry(Part.Circle(App.Vector(0, 363.5, 0), App.Vector(0, 0, 1), 2.6), False)
sketch12.addConstraint(Sketcher.Constraint("Equal", 0, 1))
sketch12.addConstraint(Sketcher.Constraint("Equal", 1, 2))
sketch12.addConstraint(Sketcher.Constraint("PointOnObject", 0, 3, -2))
sketch12.addConstraint(Sketcher.Constraint("PointOnObject", 1, 3, -2))
sketch12.addConstraint(Sketcher.Constraint("PointOnObject", 2, 3, -2))
sketch12.addConstraint(Sketcher.Constraint("Diameter", 0, Q("0.203 in")))
sketch12.addConstraint(Sketcher.Constraint("DistanceY", 1, 3, 0, 3, Q("1 in")))
sketch12.addConstraint(Sketcher.Constraint("DistanceY", 2, 3, 1, 3, Q("1 in")))
sketch12.addConstraint(Sketcher.Constraint("DistanceY", -1, 1, 0, 3, Q("16.311 in")))
pocket7 = doc.addObject("PartDesign::Pocket", "Pocket006")
body.addObject(pocket7)
pocket7.Profile = sketch12
pocket7.Length = Q("1.875 in")

sketch13 = doc.addObject("Sketcher::SketchObject", "Sketch012")
body.addObject(sketch13)
sketch13.AttachmentSupport = (doc.YZ_Plane, [""])
sketch13.MapMode = "FlatFace"
sketch13.AttachmentOffset = App.Placement(App.Vector(0, 0, 0.5 * 25.4), App.Rotation())
sketch13.addGeometry(Part.LineSegment(App.Vector(-16, 376, 0), App.Vector(13, 376, 0)), False)
sketch13.addGeometry(Part.LineSegment(App.Vector(13, 376, 0), App.Vector(61, 483, 0)), False)
sketch13.addGeometry(Part.LineSegment(App.Vector(61, 483, 0), App.Vector(-16, 480, 0)), False)
sketch13.addGeometry(Part.LineSegment(App.Vector(-16, 480, 0), App.Vector(-16, 376, 0)), False)
sketch13.addConstraint(Sketcher.Constraint("Coincident", 0, 2, 1, 1))
sketch13.addConstraint(Sketcher.Constraint("Coincident", 1, 2, 2, 1))
sketch13.addConstraint(Sketcher.Constraint("Coincident", 2, 2, 3, 1))
sketch13.addConstraint(Sketcher.Constraint("Coincident", 3, 2, 0, 1))
sketch13.addConstraint(Sketcher.Constraint("Horizontal", 0))
sketch13.addConstraint(Sketcher.Constraint("Vertical", 3))
sketch13.addConstraint(Sketcher.Constraint("DistanceX", -1, 1, 0, 2, Q("0.5 in")))
sketch13.addConstraint(Sketcher.Constraint("DistanceY", -1, 1, 0, 2, Q("14.811 in")))
sketch13.addConstraint(Sketcher.Constraint("Distance", 1, Q("4.6244 in")))
sketch13.addConstraint(Sketcher.Constraint("Distance", 2, Q("3.0224 in")))
sketch13.addConstraint(Sketcher.Constraint("DistanceX", 0, 1, 0, 2, 28.4916))
sketch13.addConstraint(Sketcher.Constraint("DistanceY", 3, 2, 3, 1, 103.9715))
pocket8 = doc.addObject("PartDesign::Pocket", "Pocket007")
body.addObject(pocket8)
pocket8.Profile = sketch13
pocket8.Length = Q("1.875 in")

sketch14 = doc.addObject("Sketcher::SketchObject", "Sketch013")
body.addObject(sketch14)
sketch14.AttachmentSupport = (doc.YZ_Plane, [""])
sketch14.MapMode = "FlatFace"
sketch14.AttachmentOffset = App.Placement(App.Vector(0, 0, 0.5 * 25.4), App.Rotation())
sketch14.addGeometry(Part.LineSegment(App.Vector(-21, 325, 0), App.Vector(13, 325, 0)), False)
sketch14.addGeometry(Part.LineSegment(App.Vector(13, 325, 0), App.Vector(13, 388, 0)), False)
sketch14.addGeometry(Part.LineSegment(App.Vector(13, 388, 0), App.Vector(-21, 388, 0)), False)
sketch14.addGeometry(Part.LineSegment(App.Vector(-21, 388, 0), App.Vector(-21, 325, 0)), False)
sketch14.addConstraint(Sketcher.Constraint("Coincident", 0, 2, 1, 1))
sketch14.addConstraint(Sketcher.Constraint("Coincident", 1, 2, 2, 1))
sketch14.addConstraint(Sketcher.Constraint("Coincident", 2, 2, 3, 1))
sketch14.addConstraint(Sketcher.Constraint("Coincident", 3, 2, 0, 1))
sketch14.addConstraint(Sketcher.Constraint("Horizontal", 0))
sketch14.addConstraint(Sketcher.Constraint("Vertical", 1))
sketch14.addConstraint(Sketcher.Constraint("Horizontal", 2))
sketch14.addConstraint(Sketcher.Constraint("Vertical", 3))
sketch14.addConstraint(Sketcher.Constraint("DistanceX", -1, 1, 0, 2, Q("0.5 in")))
sketch14.addConstraint(Sketcher.Constraint("DistanceX", 0, 1, 0, 2, Q("1.3142 in")))
sketch14.addConstraint(Sketcher.Constraint("DistanceY", -1, 1, 0, 2, Q("12.811 in")))
sketch14.addConstraint(Sketcher.Constraint("DistanceY", 1, 1, 1, 2, 62.4775))
pocket9 = doc.addObject("PartDesign::Pocket", "Pocket008")
body.addObject(pocket9)
pocket9.Profile = sketch14
pocket9.Length = Q("4.4375 in")

doc.recompute()
